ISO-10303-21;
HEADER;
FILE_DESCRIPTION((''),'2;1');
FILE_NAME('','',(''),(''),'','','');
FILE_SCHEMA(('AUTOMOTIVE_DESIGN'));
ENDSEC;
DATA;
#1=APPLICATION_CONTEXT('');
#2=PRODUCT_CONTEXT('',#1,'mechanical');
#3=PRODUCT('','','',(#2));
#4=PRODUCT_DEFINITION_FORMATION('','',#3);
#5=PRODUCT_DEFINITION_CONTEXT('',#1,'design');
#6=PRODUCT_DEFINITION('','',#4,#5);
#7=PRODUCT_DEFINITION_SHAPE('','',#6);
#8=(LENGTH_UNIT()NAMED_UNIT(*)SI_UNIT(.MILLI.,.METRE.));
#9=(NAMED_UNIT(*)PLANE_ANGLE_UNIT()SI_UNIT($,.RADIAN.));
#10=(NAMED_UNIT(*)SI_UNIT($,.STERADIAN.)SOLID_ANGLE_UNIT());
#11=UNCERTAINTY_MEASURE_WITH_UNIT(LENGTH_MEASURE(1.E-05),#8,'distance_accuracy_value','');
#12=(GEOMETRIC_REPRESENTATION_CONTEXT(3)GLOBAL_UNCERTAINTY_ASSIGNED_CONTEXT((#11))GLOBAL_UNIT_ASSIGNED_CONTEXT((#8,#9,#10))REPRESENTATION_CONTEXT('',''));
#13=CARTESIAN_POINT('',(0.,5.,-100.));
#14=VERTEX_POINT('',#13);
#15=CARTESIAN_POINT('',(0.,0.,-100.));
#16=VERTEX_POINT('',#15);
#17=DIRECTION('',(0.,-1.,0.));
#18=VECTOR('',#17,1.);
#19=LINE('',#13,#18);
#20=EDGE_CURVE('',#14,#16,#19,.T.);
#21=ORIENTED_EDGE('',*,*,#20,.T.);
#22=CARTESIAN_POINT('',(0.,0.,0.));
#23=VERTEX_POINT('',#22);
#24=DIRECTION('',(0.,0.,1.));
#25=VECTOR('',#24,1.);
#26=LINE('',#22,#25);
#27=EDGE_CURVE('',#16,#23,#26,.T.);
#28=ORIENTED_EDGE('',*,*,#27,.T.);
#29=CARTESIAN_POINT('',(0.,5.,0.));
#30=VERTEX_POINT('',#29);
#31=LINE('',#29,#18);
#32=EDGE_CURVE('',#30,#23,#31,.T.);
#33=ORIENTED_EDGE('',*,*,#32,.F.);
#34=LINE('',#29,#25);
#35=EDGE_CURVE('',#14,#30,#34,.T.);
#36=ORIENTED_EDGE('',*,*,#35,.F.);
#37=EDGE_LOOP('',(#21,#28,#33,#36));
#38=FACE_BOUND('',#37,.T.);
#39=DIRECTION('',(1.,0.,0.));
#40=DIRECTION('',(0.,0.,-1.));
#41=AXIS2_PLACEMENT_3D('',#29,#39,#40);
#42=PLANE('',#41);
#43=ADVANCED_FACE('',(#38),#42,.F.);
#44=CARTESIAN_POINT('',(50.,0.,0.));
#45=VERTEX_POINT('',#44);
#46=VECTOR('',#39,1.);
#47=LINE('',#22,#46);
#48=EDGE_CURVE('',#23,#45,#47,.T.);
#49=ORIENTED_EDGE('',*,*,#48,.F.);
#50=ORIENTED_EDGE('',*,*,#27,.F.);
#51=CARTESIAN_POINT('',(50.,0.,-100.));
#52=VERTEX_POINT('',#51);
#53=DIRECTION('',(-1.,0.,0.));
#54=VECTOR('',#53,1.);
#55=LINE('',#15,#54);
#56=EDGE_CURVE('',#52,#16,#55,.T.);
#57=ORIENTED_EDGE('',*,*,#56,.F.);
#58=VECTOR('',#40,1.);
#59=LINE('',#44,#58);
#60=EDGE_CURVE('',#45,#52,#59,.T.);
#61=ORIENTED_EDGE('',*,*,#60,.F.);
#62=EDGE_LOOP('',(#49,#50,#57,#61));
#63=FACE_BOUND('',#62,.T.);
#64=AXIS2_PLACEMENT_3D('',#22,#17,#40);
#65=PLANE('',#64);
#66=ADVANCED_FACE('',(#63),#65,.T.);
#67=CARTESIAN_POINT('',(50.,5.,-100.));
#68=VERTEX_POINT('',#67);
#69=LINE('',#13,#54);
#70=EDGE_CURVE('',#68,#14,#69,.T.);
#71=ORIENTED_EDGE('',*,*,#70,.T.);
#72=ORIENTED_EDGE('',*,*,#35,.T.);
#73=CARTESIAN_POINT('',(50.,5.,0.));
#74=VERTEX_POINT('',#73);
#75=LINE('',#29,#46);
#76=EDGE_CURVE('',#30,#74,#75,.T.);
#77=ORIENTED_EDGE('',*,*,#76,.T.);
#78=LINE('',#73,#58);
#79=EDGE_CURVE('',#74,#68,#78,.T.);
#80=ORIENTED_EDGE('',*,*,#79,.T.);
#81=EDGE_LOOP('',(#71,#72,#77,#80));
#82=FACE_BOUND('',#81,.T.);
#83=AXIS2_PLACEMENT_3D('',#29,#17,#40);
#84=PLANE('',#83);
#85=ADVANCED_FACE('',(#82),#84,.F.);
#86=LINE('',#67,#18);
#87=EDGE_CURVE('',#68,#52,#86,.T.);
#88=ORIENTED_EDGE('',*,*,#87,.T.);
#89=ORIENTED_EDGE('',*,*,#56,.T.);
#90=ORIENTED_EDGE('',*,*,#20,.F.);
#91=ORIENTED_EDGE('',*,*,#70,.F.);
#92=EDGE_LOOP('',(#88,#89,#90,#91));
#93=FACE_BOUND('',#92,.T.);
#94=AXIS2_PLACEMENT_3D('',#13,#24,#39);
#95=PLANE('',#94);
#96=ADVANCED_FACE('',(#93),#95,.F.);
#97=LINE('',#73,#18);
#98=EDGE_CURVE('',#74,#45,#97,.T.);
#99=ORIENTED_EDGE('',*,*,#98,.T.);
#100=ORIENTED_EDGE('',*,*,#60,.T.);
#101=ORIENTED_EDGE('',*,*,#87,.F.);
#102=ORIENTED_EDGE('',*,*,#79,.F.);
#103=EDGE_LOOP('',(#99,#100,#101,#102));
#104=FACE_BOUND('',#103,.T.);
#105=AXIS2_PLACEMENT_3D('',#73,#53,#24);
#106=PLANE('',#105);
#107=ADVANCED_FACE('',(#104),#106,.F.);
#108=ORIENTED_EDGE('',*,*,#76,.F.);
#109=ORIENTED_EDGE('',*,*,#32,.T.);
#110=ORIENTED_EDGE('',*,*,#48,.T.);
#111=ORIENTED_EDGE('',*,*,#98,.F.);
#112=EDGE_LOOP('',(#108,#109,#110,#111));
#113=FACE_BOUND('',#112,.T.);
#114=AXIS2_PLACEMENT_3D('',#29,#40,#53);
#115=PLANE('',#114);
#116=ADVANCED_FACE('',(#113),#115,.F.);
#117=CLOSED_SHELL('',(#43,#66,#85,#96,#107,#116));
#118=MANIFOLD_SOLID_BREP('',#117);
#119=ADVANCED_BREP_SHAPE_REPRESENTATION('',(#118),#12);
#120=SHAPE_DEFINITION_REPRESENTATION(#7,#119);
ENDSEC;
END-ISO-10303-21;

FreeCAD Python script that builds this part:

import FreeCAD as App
import Part
import Sketcher
from FreeCAD import Vector
Q = App.Units.Quantity

doc = App.newDocument("Part")
body = doc.addObject("PartDesign::Body", "Body")

# Sketch on XZ plane
sketch1 = doc.addObject("Sketcher::SketchObject", "Sketch")
body.addObject(sketch1)
sketch1.AttachmentSupport = (doc.XZ_Plane, [""])
sketch1.MapMode = "FlatFace"
sketch1.addGeometry([
    Part.LineSegment(Vector(0, -100, 0), Vector(0, 0, 0)),
    Part.LineSegment(Vector(0, 0, 0), Vector(50, 0, 0)),
    Part.LineSegment(Vector(50, 0, 0), Vector(50, -100, 0)),
    Part.LineSegment(Vector(50, -100, 0), Vector(0, -100, 0)),
], False)
sketch1.addConstraint([
    Sketcher.Constraint("Coincident", 0, 2, 1, 1),
    Sketcher.Constraint("Coincident", 1, 2, 2, 1),
    Sketcher.Constraint("Coincident", 2, 2, 3, 1),
    Sketcher.Constraint("Coincident", 3, 2, 0, 1),
    Sketcher.Constraint("Vertical", 0),
    Sketcher.Constraint("Horizontal", 1),
    Sketcher.Constraint("Vertical", 2),
    Sketcher.Constraint("Horizontal", 3),
    Sketcher.Constraint("Coincident", 0, 2, -1, 1),
    Sketcher.Constraint("DistanceX", 1, 1, 1, 2, Q("50 mm")),
    Sketcher.Constraint("DistanceY", 0, 1, 0, 2, Q("100 mm")),
])
pad1 = doc.addObject("PartDesign::Pad", "Pad")
body.addObject(pad1)
pad1.Profile = sketch1
pad1.Length = 5
pad1.Reversed = True

doc.recompute()
